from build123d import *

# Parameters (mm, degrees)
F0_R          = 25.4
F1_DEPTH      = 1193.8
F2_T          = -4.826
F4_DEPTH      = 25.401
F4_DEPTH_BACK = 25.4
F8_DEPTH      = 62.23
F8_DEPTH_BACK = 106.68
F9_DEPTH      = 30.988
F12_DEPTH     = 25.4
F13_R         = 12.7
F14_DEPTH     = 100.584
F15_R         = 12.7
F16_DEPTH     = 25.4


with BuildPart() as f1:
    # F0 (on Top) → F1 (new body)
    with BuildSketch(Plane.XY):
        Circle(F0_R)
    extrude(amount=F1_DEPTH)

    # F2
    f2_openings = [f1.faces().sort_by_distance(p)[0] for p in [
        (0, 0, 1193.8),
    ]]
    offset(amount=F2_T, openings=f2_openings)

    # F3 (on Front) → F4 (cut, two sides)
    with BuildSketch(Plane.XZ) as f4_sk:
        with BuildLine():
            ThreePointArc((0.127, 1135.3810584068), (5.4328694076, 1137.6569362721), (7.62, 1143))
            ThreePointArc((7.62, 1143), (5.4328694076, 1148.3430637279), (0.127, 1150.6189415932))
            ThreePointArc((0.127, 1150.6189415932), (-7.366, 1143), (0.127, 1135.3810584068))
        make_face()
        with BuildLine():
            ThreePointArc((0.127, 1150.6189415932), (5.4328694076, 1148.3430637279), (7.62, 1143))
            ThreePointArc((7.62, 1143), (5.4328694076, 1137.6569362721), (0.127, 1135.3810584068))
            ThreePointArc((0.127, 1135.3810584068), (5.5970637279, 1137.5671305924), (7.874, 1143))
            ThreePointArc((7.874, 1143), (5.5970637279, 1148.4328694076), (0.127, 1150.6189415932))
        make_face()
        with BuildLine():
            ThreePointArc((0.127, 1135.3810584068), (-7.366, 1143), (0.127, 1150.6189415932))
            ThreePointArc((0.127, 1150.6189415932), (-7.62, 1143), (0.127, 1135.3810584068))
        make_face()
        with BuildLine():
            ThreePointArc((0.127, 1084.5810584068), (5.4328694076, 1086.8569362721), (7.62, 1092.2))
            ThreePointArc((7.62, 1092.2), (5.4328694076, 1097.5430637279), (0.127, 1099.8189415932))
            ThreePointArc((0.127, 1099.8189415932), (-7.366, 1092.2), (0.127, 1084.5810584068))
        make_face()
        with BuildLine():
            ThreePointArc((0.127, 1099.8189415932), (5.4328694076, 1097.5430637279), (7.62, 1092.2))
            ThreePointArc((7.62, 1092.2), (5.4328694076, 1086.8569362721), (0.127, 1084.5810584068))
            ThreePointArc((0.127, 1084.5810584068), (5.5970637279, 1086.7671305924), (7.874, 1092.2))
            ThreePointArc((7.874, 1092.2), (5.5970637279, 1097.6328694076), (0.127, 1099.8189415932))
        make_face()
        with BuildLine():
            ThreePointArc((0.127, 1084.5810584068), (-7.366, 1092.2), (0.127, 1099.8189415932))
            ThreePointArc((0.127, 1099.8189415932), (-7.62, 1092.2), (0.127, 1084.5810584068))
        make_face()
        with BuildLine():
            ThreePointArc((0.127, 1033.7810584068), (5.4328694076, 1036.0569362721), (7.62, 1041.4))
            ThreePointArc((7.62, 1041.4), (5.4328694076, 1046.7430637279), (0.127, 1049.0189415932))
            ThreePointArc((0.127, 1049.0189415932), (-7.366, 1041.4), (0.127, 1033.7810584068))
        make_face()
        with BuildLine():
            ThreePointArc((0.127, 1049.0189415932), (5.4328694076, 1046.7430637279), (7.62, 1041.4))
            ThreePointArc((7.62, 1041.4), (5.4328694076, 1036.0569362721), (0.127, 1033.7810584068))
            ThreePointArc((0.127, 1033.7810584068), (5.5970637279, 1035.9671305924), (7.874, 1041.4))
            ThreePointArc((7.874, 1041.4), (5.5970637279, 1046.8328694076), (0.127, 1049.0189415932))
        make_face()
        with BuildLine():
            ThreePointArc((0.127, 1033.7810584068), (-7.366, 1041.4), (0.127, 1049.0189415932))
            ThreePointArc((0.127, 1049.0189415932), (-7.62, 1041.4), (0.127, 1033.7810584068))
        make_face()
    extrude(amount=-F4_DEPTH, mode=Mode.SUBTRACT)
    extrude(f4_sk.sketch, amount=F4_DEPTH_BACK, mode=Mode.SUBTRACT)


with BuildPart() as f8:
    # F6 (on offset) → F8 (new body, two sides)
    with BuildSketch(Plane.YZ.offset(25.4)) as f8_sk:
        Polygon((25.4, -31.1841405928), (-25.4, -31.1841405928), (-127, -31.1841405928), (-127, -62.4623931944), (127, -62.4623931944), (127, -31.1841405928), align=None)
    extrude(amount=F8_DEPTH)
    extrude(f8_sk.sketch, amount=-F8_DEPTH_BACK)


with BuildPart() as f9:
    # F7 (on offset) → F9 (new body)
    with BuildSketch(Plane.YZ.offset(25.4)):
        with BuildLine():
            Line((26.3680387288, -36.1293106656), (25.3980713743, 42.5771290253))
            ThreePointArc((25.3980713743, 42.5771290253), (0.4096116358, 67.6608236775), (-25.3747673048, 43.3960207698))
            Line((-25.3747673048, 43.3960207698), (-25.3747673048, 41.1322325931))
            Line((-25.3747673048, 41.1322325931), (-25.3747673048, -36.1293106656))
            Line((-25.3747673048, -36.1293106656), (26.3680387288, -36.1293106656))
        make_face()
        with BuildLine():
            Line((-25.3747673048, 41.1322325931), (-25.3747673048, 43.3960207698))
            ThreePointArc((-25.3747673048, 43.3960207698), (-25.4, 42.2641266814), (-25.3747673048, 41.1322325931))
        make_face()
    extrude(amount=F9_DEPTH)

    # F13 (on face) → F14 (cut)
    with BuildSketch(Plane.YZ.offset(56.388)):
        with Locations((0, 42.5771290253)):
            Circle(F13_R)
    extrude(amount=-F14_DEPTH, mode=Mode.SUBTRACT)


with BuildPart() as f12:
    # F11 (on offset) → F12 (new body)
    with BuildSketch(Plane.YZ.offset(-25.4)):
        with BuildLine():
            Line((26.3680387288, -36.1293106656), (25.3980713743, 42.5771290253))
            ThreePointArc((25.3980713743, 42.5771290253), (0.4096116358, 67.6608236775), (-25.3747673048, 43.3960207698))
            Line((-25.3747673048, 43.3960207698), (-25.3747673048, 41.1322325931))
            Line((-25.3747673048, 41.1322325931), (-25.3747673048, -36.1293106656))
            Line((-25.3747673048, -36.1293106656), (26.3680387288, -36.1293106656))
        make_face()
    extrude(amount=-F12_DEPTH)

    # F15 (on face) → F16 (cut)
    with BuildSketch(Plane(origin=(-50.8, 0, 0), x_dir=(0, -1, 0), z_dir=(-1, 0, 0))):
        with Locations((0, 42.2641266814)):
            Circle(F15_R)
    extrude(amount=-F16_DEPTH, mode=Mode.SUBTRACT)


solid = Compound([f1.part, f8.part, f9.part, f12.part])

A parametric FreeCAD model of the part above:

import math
import FreeCAD as App
import Part
import Sketcher
Q = App.Units.Quantity


def faces_at(feature, points):
    """Names of the faces that lie closest to the given points."""
    faces = feature.Shape.Faces
    near = lambda p: min(range(len(faces)), key=lambda i: faces[i].distToShape(Part.Vertex(*p))[0])
    return sorted({f"Face{near(p) + 1}" for p in points})

doc = App.newDocument("Part")
params = doc.addObject("Spreadsheet::Sheet", "Params")
for row, (alias, value) in enumerate([
    ("sketch1_diameter", "2 in"),
    ("pad1_length", "47 in"),
    ("thickness_wall", "0.19 in"),
    ("sketch2_radius", "0.3 in"),
    ("sketch3_width", "10 in"),
    ("pad2_length", "2.45 in"),
    ("pad2_length2", "4.2 in"),
    ("sketch4_radius", "1 in"),
    ("pad3_length", "1.22 in"),
    ("sketch5_diameter", "1 in"),
    ("pocket2_length", "3.96 in"),
    ("sketch6_radius", "1 in"),
    ("pad4_length", "1 in"),
    ("sketch7_diameter", "1 in"),
    ("pocket3_length", "1 in"),
], start=1):
    params.set(f"A{row}", alias)
    params.set(f"B{row}", "=" + value)
    params.setAlias(f"B{row}", alias)

body = doc.addObject("PartDesign::Body", "Body")

# Sketch on XY plane
sketch1 = doc.addObject("Sketcher::SketchObject", "Sketch")
body.addObject(sketch1)
sketch1.AttachmentSupport = (doc.XY_Plane, [""])
sketch1.MapMode = "FlatFace"
sketch1.addGeometry(Part.Circle(App.Vector(0, 0, 0), App.Vector(0, 0, 1), 25), False)
sketch1.addConstraint([
    Sketcher.Constraint("Coincident", 0, 3, -1, 1),
    Sketcher.Constraint("Diameter", 0, Q("2 in")),
])
sketch1.setExpression("Constraints[1]", "Params.sketch1_diameter")
pad1 = doc.addObject("PartDesign::Pad", "Pad")
body.addObject(pad1)
pad1.Profile = sketch1
pad1.setExpression("Length", "Params.pad1_length")
doc.recompute()

thickness = doc.addObject("PartDesign::Thickness", "Thickness")
body.addObject(thickness)
thickness.Base = (pad1, faces_at(pad1, [(0, 0, 1193.8)]))
thickness.setExpression("Value", "Params.thickness_wall")
thickness.Reversed = True
thickness.Join = "Arc"

# Sketch on XZ plane
sketch2 = doc.addObject("Sketcher::SketchObject", "Sketch001")
body.addObject(sketch2)
sketch2.AttachmentSupport = (doc.XZ_Plane, [""])
sketch2.MapMode = "FlatFace"
sketch2.addGeometry([
    Part.ArcOfCircle(Part.Circle(App.Vector(0, 1143, 0), App.Vector(0, 0, 1), 8), math.radians(-91), math.radians(0)),  # 0
    Part.ArcOfCircle(Part.Circle(App.Vector(0, 1143, 0), App.Vector(0, 0, 1), 8), math.radians(0), math.radians(91)),  # 1
    Part.ArcOfCircle(Part.Circle(App.Vector(0, 1143, 0), App.Vector(0, 0, 1), 8), math.radians(89), math.radians(271)),  # 2
    Part.ArcOfCircle(Part.Circle(App.Vector(0, 1092, 0), App.Vector(0, 0, 1), 8), math.radians(-91), math.radians(0)),  # 3
    Part.ArcOfCircle(Part.Circle(App.Vector(0, 1092, 0), App.Vector(0, 0, 1), 8), math.radians(0), math.radians(91)),  # 4
    Part.ArcOfCircle(Part.Circle(App.Vector(0, 1092, 0), App.Vector(0, 0, 1), 8), math.radians(89), math.radians(271)),  # 5
    Part.ArcOfCircle(Part.Circle(App.Vector(0, 1041, 0), App.Vector(0, 0, 1), 8), math.radians(-91), math.radians(0)),  # 6
    Part.ArcOfCircle(Part.Circle(App.Vector(0, 1041, 0), App.Vector(0, 0, 1), 8), math.radians(0), math.radians(91)),  # 7
    Part.ArcOfCircle(Part.Circle(App.Vector(0, 1041, 0), App.Vector(0, 0, 1), 8), math.radians(89), math.radians(271)),  # 8
], False)
sketch2.addConstraint([
    Sketcher.Constraint("Tangent", 0, 2, 1, 1),
    Sketcher.Constraint("Coincident", 1, 2, 2, 1),
    Sketcher.Constraint("Coincident", 2, 2, 0, 1),
    Sketcher.Constraint("Tangent", 3, 2, 4, 1),
    Sketcher.Constraint("Coincident", 4, 2, 5, 1),
    Sketcher.Constraint("Coincident", 5, 2, 3, 1),
    Sketcher.Constraint("Tangent", 6, 2, 7, 1),
    Sketcher.Constraint("Coincident", 7, 2, 8, 1),
    Sketcher.Constraint("Coincident", 8, 2, 6, 1),
    Sketcher.Constraint("Equal", 0, 1),
    Sketcher.Constraint("Equal", 1, 2),
    Sketcher.Constraint("Equal", 2, 3),
    Sketcher.Constraint("Equal", 3, 4),
    Sketcher.Constraint("Equal", 4, 5),
    Sketcher.Constraint("Equal", 5, 6),
    Sketcher.Constraint("Equal", 6, 7),
    Sketcher.Constraint("Equal", 7, 8),
    Sketcher.Constraint("PointOnObject", 2, 3, -2),
    Sketcher.Constraint("PointOnObject", 5, 3, -2),
    Sketcher.Constraint("PointOnObject", 8, 3, -2),
    Sketcher.Constraint("Horizontal", 1, 3, 2, 3),
    Sketcher.Constraint("Horizontal", 4, 3, 5, 3),
    Sketcher.Constraint("Horizontal", 7, 3, 8, 3),
    Sketcher.Constraint("Horizontal", 2, 3, 0, 2),
    Sketcher.Constraint("Horizontal", 5, 3, 3, 2),
    Sketcher.Constraint("Horizontal", 8, 3, 6, 2),
    Sketcher.Constraint("Vertical", 1, 3, 3, 3),
    Sketcher.Constraint("Vertical", 4, 3, 6, 3),
    Sketcher.Constraint("Radius", 0, Q("0.3 in")),
    Sketcher.Constraint("DistanceY", -1, 1, 0, 3, Q("45 in")),
    Sketcher.Constraint("DistanceY", -1, 1, 3, 3, Q("43 in")),
    Sketcher.Constraint("DistanceY", -1, 1, 6, 3, Q("41 in")),
    Sketcher.Constraint("DistanceX", -1, 1, 0, 3, Q("0.01 in")),
])
sketch2.setExpression("Constraints[28]", "Params.sketch2_radius")
pocket1 = doc.addObject("PartDesign::Pocket", "Pocket")
body.addObject(pocket1)
pocket1.Profile = sketch2
pocket1.Type = "ThroughAll"
pocket1.Midplane = True
body2 = doc.addObject("PartDesign::Body", "Body001")

# Sketch on YZ plane
sketch3 = doc.addObject("Sketcher::SketchObject", "Sketch002")
body2.addObject(sketch3)
sketch3.AttachmentSupport = (doc.getObject("YZ_Plane001"), [""])
sketch3.MapMode = "FlatFace"
sketch3.AttachmentOffset = App.Placement(App.Vector(0, 0, 1 * 25.4), App.Rotation())
sketch3.addGeometry([
    Part.LineSegment(App.Vector(-127, -31, 0), App.Vector(-127, -62, 0)),
    Part.LineSegment(App.Vector(-127, -62, 0), App.Vector(127, -62, 0)),
    Part.LineSegment(App.Vector(127, -62, 0), App.Vector(127, -31, 0)),
    Part.LineSegment(App.Vector(127, -31, 0), App.Vector(-127, -31, 0)),
], False)
sketch3.addConstraint([
    Sketcher.Constraint("Coincident", 0, 2, 1, 1),
    Sketcher.Constraint("Coincident", 1, 2, 2, 1),
    Sketcher.Constraint("Coincident", 2, 2, 3, 1),
    Sketcher.Constraint("Coincident", 3, 2, 0, 1),
    Sketcher.Constraint("Vertical", 0),
    Sketcher.Constraint("Horizontal", 1),
    Sketcher.Constraint("Vertical", 2),
    Sketcher.Constraint("Horizontal", 3),
    Sketcher.Constraint("DistanceX", 1, 1, 1, 2, Q("10 in")),
    Sketcher.Constraint("DistanceX", 0, 2, -1, 1, Q("5 in")),
    Sketcher.Constraint("DistanceY", 0, 2, 0, 1, 31.278253),
    Sketcher.Constraint("DistanceY", 2, 2, -1, 1, 31.184141),
])
sketch3.setExpression("Constraints[8]", "Params.sketch3_width")
pad2 = doc.addObject("PartDesign::Pad", "Pad001")
body2.addObject(pad2)
pad2.Profile = sketch3
pad2.Type = "TwoLengths"
pad2.setExpression("Length", "Params.pad2_length")
pad2.setExpression("Length2", "Params.pad2_length2")
body3 = doc.addObject("PartDesign::Body", "Body002")

# Sketch on YZ plane
sketch4 = doc.addObject("Sketcher::SketchObject", "Sketch003")
body3.addObject(sketch4)
sketch4.AttachmentSupport = (doc.getObject("YZ_Plane002"), [""])
sketch4.MapMode = "FlatFace"
sketch4.AttachmentOffset = App.Placement(App.Vector(0, 0, 1 * 25.4), App.Rotation())
sketch4.addGeometry([
    Part.LineSegment(App.Vector(26, -36, 0), App.Vector(25, 43, 0)),
    Part.ArcOfCircle(Part.Circle(App.Vector(0, 42, 0), App.Vector(0, 0, 1), 25), math.radians(1), math.radians(183)),
    Part.LineSegment(App.Vector(-25, 41, 0), App.Vector(-25, -36, 0)),
    Part.LineSegment(App.Vector(-25, -36, 0), App.Vector(26, -36, 0)),
], False)
sketch4.addConstraint([
    Sketcher.Constraint("Tangent", 0, 2, 1, 1),
    Sketcher.Constraint("Coincident", 1, 2, 2, 1),
    Sketcher.Constraint("Coincident", 2, 2, 3, 1),
    Sketcher.Constraint("Coincident", 3, 2, 0, 1),
    Sketcher.Constraint("Vertical", 2),
    Sketcher.Constraint("Horizontal", 3),
    Sketcher.Constraint("PointOnObject", 1, 3, -2),
    Sketcher.Constraint("Radius", 1, Q("1 in")),
    Sketcher.Constraint("DistanceX", 3, 1, 3, 2, 51.742806),
    Sketcher.Constraint("DistanceY", 2, 2, 2, 1, 77.261543),
    Sketcher.Constraint("DistanceY", -1, 1, 0, 2, 42.577129),
    Sketcher.Constraint("DistanceY", 2, 2, -1, 1, 36.129311),
])
sketch4.setExpression("Constraints[7]", "Params.sketch4_radius")
pad3 = doc.addObject("PartDesign::Pad", "Pad002")
body3.addObject(pad3)
pad3.Profile = sketch4
pad3.setExpression("Length", "Params.pad3_length")

# Sketch on YZ plane
sketch5 = doc.addObject("Sketcher::SketchObject", "Sketch004")
body3.addObject(sketch5)
sketch5.AttachmentSupport = (doc.getObject("YZ_Plane002"), [""])
sketch5.MapMode = "FlatFace"
sketch5.AttachmentOffset = App.Placement(App.Vector(0, 0, 2.22 * 25.4), App.Rotation())
sketch5.addGeometry(Part.Circle(App.Vector(0, 43, 0), App.Vector(0, 0, 1), 13), False)
sketch5.addConstraint([
    Sketcher.Constraint("PointOnObject", 0, 3, -2),
    Sketcher.Constraint("Diameter", 0, Q("1 in")),
    Sketcher.Constraint("DistanceY", -1, 1, 0, 3, 42.577129),
])
sketch5.setExpression("Constraints[1]", "Params.sketch5_diameter")
pocket2 = doc.addObject("PartDesign::Pocket", "Pocket001")
body3.addObject(pocket2)
pocket2.Profile = sketch5
pocket2.setExpression("Length", "Params.pocket2_length")
body4 = doc.addObject("PartDesign::Body", "Body003")

# Sketch on YZ plane
sketch6 = doc.addObject("Sketcher::SketchObject", "Sketch005")
body4.addObject(sketch6)
sketch6.AttachmentSupport = (doc.getObject("YZ_Plane003"), [""])
sketch6.MapMode = "FlatFace"
sketch6.AttachmentOffset = App.Placement(App.Vector(0, 0, -1 * 25.4), App.Rotation())
sketch6.addGeometry([
    Part.LineSegment(App.Vector(26, -36, 0), App.Vector(25, 43, 0)),
    Part.ArcOfCircle(Part.Circle(App.Vector(0, 42, 0), App.Vector(0, 0, 1), 25), math.radians(1), math.radians(177)),
    Part.LineSegment(App.Vector(-25, 43, 0), App.Vector(-25, -36, 0)),
    Part.LineSegment(App.Vector(-25, -36, 0), App.Vector(26, -36, 0)),
], False)
sketch6.addConstraint([
    Sketcher.Constraint("Tangent", 0, 2, 1, 1),
    Sketcher.Constraint("Coincident", 1, 2, 2, 1),
    Sketcher.Constraint("Coincident", 2, 2, 3, 1),
    Sketcher.Constraint("Coincident", 3, 2, 0, 1),
    Sketcher.Constraint("Vertical", 2),
    Sketcher.Constraint("Horizontal", 3),
    Sketcher.Constraint("PointOnObject", 1, 3, -2),
    Sketcher.Constraint("Radius", 1, Q("1 in")),
    Sketcher.Constraint("DistanceY", 2, 2, 2, 1, 79.525331),
    Sketcher.Constraint("DistanceX", 3, 1, 3, 2, 51.742806),
    Sketcher.Constraint("DistanceY", -1, 1, 0, 2, 42.577129),
    Sketcher.Constraint("DistanceY", -1, 1, 1, 2, 43.396021),
])
sketch6.setExpression("Constraints[7]", "Params.sketch6_radius")
pad4 = doc.addObject("PartDesign::Pad", "Pad003")
body4.addObject(pad4)
pad4.Profile = sketch6
pad4.setExpression("Length", "Params.pad4_length")
pad4.Reversed = True

# Sketch on YZ plane
sketch7 = doc.addObject("Sketcher::SketchObject", "Sketch006")
body4.addObject(sketch7)
sketch7.AttachmentSupport = (doc.getObject("YZ_Plane003"), [""])
sketch7.MapMode = "FlatFace"
sketch7.AttachmentOffset = App.Placement(App.Vector(0, 0, -2 * 25.4), App.Rotation())
sketch7.addGeometry(Part.Circle(App.Vector(0, 42, 0), App.Vector(0, 0, 1), 13), False)
sketch7.addConstraint([
    Sketcher.Constraint("PointOnObject", 0, 3, -2),
    Sketcher.Constraint("Diameter", 0, Q("1 in")),
    Sketcher.Constraint("DistanceY", -1, 1, 0, 3, 42.264127),
])
sketch7.setExpression("Constraints[1]", "Params.sketch7_diameter")
pocket3 = doc.addObject("PartDesign::Pocket", "Pocket002")
body4.addObject(pocket3)
pocket3.Profile = sketch7
pocket3.setExpression("Length", "Params.pocket3_length")
pocket3.Reversed = True

doc.recompute()
